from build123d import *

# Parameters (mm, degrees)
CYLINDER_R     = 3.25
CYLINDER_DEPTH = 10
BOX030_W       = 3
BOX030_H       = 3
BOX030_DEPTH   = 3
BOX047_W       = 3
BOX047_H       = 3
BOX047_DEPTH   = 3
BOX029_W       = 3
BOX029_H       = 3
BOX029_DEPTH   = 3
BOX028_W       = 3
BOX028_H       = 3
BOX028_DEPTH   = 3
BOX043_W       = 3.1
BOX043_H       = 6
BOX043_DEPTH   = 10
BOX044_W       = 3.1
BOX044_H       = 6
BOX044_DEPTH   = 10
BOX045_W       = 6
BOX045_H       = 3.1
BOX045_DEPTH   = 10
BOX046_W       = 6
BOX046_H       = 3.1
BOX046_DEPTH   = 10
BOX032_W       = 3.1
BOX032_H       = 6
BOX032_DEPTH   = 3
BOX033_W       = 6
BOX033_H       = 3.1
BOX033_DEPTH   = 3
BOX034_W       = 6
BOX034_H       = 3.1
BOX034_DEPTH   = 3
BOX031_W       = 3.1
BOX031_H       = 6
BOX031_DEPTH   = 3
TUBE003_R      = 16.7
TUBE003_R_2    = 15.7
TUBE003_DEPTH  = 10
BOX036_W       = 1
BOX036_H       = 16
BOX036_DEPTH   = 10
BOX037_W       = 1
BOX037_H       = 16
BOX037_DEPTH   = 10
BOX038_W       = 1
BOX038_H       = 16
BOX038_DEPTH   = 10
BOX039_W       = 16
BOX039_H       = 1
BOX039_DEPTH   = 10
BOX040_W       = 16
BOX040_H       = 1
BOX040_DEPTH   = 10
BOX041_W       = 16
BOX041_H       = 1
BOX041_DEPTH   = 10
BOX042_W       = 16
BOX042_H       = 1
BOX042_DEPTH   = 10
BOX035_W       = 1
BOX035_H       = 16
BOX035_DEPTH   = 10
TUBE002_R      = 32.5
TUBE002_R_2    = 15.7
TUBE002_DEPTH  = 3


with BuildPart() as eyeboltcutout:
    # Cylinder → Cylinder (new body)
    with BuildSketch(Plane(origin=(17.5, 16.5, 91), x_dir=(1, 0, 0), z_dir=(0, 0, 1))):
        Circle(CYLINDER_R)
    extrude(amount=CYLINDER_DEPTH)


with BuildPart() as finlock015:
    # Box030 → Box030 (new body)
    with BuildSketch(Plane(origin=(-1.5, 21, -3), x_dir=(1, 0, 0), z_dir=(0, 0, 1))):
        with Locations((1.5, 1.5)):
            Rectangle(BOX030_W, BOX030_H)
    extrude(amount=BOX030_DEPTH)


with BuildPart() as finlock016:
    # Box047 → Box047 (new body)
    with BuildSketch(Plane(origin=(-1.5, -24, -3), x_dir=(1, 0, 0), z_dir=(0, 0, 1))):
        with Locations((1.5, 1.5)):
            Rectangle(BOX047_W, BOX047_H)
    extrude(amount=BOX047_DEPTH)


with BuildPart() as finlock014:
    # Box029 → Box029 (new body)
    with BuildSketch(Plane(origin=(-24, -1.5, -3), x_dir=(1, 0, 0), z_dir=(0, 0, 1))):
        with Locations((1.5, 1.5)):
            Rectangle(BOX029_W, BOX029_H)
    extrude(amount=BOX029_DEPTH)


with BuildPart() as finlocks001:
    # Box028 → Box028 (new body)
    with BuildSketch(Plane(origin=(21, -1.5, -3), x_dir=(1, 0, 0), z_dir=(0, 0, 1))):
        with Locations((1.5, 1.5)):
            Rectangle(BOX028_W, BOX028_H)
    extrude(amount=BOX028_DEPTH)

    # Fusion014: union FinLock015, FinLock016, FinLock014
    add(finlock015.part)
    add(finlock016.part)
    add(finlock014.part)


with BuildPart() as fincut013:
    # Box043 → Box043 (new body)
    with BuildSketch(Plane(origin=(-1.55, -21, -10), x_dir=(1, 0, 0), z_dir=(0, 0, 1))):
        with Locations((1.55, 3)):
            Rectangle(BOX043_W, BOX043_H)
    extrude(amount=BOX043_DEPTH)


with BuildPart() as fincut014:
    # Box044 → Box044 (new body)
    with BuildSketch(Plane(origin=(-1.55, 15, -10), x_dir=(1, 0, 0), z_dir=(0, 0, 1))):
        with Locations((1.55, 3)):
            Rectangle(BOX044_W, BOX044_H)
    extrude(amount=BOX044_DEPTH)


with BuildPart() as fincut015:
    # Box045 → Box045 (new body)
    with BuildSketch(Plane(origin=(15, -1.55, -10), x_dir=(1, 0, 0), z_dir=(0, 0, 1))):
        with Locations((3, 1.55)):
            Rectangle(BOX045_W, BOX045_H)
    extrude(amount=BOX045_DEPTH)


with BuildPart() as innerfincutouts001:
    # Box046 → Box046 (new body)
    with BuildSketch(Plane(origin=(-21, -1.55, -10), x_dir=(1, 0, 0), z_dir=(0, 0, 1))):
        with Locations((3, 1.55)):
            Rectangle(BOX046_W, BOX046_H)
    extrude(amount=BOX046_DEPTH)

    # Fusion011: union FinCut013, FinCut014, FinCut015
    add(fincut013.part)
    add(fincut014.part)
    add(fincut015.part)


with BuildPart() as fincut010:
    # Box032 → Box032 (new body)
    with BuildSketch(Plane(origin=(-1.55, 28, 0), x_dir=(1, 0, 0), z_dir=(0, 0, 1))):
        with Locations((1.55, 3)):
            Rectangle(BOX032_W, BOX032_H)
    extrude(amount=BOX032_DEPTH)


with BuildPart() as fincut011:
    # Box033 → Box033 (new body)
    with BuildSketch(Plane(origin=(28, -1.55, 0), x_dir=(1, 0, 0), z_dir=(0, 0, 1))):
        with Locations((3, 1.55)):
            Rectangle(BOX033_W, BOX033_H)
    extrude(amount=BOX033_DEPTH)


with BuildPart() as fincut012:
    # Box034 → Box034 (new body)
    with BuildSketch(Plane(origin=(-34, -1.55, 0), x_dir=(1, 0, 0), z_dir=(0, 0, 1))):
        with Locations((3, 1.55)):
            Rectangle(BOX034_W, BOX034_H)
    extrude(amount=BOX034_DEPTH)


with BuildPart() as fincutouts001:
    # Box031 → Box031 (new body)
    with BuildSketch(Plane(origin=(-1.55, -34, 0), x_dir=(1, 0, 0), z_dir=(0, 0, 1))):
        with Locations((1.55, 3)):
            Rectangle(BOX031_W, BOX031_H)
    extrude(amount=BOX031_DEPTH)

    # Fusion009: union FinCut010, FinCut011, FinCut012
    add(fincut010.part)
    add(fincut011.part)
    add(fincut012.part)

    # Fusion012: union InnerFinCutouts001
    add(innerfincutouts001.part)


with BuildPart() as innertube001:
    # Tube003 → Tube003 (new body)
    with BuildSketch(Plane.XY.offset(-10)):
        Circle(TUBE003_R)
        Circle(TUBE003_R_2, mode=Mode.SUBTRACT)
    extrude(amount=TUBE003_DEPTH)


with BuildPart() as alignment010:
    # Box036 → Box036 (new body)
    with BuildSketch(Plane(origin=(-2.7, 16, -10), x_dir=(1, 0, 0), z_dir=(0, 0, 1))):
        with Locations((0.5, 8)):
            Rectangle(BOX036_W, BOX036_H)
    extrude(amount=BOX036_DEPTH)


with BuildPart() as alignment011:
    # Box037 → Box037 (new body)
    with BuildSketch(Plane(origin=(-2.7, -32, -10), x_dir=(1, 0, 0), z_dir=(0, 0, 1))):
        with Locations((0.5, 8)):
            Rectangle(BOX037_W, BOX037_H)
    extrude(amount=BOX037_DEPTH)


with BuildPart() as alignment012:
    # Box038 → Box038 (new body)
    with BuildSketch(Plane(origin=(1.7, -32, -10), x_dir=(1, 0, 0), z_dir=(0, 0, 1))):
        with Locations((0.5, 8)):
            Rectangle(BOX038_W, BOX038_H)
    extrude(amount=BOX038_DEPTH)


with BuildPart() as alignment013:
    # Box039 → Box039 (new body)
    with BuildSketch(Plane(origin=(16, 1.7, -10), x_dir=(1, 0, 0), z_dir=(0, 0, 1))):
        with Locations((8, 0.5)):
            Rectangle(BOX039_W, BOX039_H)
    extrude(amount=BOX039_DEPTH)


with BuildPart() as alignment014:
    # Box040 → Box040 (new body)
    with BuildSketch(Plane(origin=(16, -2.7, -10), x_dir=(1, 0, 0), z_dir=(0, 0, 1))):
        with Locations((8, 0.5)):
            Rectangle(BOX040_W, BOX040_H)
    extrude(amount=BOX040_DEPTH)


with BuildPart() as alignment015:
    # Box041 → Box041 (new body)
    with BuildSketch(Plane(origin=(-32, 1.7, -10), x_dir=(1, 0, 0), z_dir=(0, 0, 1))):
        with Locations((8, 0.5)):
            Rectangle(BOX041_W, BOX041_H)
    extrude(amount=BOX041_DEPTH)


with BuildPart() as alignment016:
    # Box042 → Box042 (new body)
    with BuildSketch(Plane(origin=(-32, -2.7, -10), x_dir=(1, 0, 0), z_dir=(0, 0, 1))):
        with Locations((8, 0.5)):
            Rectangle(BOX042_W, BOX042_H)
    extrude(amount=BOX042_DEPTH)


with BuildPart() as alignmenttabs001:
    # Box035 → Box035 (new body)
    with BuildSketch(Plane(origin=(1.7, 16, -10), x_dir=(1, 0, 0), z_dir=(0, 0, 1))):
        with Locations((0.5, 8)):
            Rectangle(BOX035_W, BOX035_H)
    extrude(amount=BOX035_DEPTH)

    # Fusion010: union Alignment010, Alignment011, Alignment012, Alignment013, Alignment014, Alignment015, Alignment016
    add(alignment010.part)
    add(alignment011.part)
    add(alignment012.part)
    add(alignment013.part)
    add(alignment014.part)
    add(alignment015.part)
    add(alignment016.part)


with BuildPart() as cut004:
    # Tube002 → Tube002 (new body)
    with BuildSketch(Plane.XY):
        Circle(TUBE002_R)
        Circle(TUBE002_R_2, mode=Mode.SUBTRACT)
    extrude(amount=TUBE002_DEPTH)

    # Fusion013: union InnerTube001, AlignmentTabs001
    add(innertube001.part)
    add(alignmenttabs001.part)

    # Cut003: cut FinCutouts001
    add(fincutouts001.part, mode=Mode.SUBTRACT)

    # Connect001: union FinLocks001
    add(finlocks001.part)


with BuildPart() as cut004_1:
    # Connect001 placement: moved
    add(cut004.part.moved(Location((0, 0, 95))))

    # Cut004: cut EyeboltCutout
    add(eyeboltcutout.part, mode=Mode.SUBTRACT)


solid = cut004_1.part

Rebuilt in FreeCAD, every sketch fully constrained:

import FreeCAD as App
import Part
import Sketcher
from FreeCAD import Vector

doc = App.newDocument("Part")
body = doc.addObject("PartDesign::Body", "Body")

# Sketch on XY plane
sketch1 = doc.addObject("Sketcher::SketchObject", "Sketch")
body.addObject(sketch1)
sketch1.AttachmentSupport = (doc.XY_Plane, [""])
sketch1.MapMode = "FlatFace"
sketch1.AttachmentOffset = App.Placement(Vector(0, 0, 91), App.Rotation())
sketch1.addGeometry(Part.Circle(Vector(17.5, 16.5, 0), Vector(0, 0, 1), 3.2), False)
sketch1.addConstraint(Sketcher.Constraint("Diameter", 0, 6.5))
sketch1.addConstraint(Sketcher.Constraint("DistanceX", -1, 1, 0, 3, 17.5))
sketch1.addConstraint(Sketcher.Constraint("DistanceY", -1, 1, 0, 3, 16.5))
pad1 = doc.addObject("PartDesign::Pad", "Pad")
body.addObject(pad1)
pad1.Profile = sketch1
pad1.Length = 10
body2 = doc.addObject("PartDesign::Body", "Body001")

# Sketch on XY plane
sketch2 = doc.addObject("Sketcher::SketchObject", "Sketch001")
body2.addObject(sketch2)
sketch2.AttachmentSupport = (doc.getObject("XY_Plane001"), [""])
sketch2.MapMode = "FlatFace"
sketch2.AttachmentOffset = App.Placement(Vector(0, 0, -3), App.Rotation())
sketch2.addGeometry(Part.LineSegment(Vector(-1.5, 24, 0), Vector(-1.5, 21, 0)), False)
sketch2.addGeometry(Part.LineSegment(Vector(-1.5, 21, 0), Vector(1.5, 21, 0)), False)
sketch2.addGeometry(Part.LineSegment(Vector(1.5, 21, 0), Vector(1.5, 24, 0)), False)
sketch2.addGeometry(Part.LineSegment(Vector(1.5, 24, 0), Vector(-1.5, 24, 0)), False)
sketch2.addConstraint(Sketcher.Constraint("Coincident", 0, 2, 1, 1))
sketch2.addConstraint(Sketcher.Constraint("Coincident", 1, 2, 2, 1))
sketch2.addConstraint(Sketcher.Constraint("Coincident", 2, 2, 3, 1))
sketch2.addConstraint(Sketcher.Constraint("Coincident", 3, 2, 0, 1))
sketch2.addConstraint(Sketcher.Constraint("Vertical", 0))
sketch2.addConstraint(Sketcher.Constraint("Horizontal", 1))
sketch2.addConstraint(Sketcher.Constraint("Vertical", 2))
sketch2.addConstraint(Sketcher.Constraint("Horizontal", 3))
sketch2.addConstraint(Sketcher.Constraint("Equal", 3, 0))
sketch2.addConstraint(Sketcher.Constraint("DistanceX", 1, 1, 1, 2, 3.0))
sketch2.addConstraint(Sketcher.Constraint("DistanceY", -1, 1, 0, 2, 21.0))
sketch2.addConstraint(Sketcher.Constraint("DistanceX", 0, 2, -1, 1, 1.5))
pad2 = doc.addObject("PartDesign::Pad", "Pad001")
body2.addObject(pad2)
pad2.Profile = sketch2
pad2.Length = 3
body3 = doc.addObject("PartDesign::Body", "Body002")

# Sketch on XY plane
sketch3 = doc.addObject("Sketcher::SketchObject", "Sketch002")
body3.addObject(sketch3)
sketch3.AttachmentSupport = (doc.getObject("XY_Plane002"), [""])
sketch3.MapMode = "FlatFace"
sketch3.AttachmentOffset = App.Placement(Vector(0, 0, -3), App.Rotation())
sketch3.addGeometry(Part.LineSegment(Vector(-1.5, -21, 0), Vector(-1.5, -24, 0)), False)
sketch3.addGeometry(Part.LineSegment(Vector(-1.5, -24, 0), Vector(1.5, -24, 0)), False)
sketch3.addGeometry(Part.LineSegment(Vector(1.5, -24, 0), Vector(1.5, -21, 0)), False)
sketch3.addGeometry(Part.LineSegment(Vector(1.5, -21, 0), Vector(-1.5, -21, 0)), False)
sketch3.addConstraint(Sketcher.Constraint("Coincident", 0, 2, 1, 1))
sketch3.addConstraint(Sketcher.Constraint("Coincident", 1, 2, 2, 1))
sketch3.addConstraint(Sketcher.Constraint("Coincident", 2, 2, 3, 1))
sketch3.addConstraint(Sketcher.Constraint("Coincident", 3, 2, 0, 1))
sketch3.addConstraint(Sketcher.Constraint("Vertical", 0))
sketch3.addConstraint(Sketcher.Constraint("Horizontal", 1))
sketch3.addConstraint(Sketcher.Constraint("Vertical", 2))
sketch3.addConstraint(Sketcher.Constraint("Horizontal", 3))
sketch3.addConstraint(Sketcher.Constraint("Equal", 3, 0))
sketch3.addConstraint(Sketcher.Constraint("DistanceX", 1, 1, 1, 2, 3.0))
sketch3.addConstraint(Sketcher.Constraint("DistanceY", 0, 2, -1, 1, 24.0))
sketch3.addConstraint(Sketcher.Constraint("DistanceX", 0, 2, -1, 1, 1.5))
pad3 = doc.addObject("PartDesign::Pad", "Pad002")
body3.addObject(pad3)
pad3.Profile = sketch3
pad3.Length = 3
body4 = doc.addObject("PartDesign::Body", "Body003")

# Sketch on XY plane
sketch4 = doc.addObject("Sketcher::SketchObject", "Sketch003")
body4.addObject(sketch4)
sketch4.AttachmentSupport = (doc.getObject("XY_Plane003"), [""])
sketch4.MapMode = "FlatFace"
sketch4.AttachmentOffset = App.Placement(Vector(0, 0, -3), App.Rotation())
sketch4.addGeometry(Part.LineSegment(Vector(-24, 1.5, 0), Vector(-24, -1.5, 0)), False)
sketch4.addGeometry(Part.LineSegment(Vector(-24, -1.5, 0), Vector(-21, -1.5, 0)), False)
sketch4.addGeometry(Part.LineSegment(Vector(-21, -1.5, 0), Vector(-21, 1.5, 0)), False)
sketch4.addGeometry(Part.LineSegment(Vector(-21, 1.5, 0), Vector(-24, 1.5, 0)), False)
sketch4.addConstraint(Sketcher.Constraint("Coincident", 0, 2, 1, 1))
sketch4.addConstraint(Sketcher.Constraint("Coincident", 1, 2, 2, 1))
sketch4.addConstraint(Sketcher.Constraint("Coincident", 2, 2, 3, 1))
sketch4.addConstraint(Sketcher.Constraint("Coincident", 3, 2, 0, 1))
sketch4.addConstraint(Sketcher.Constraint("Vertical", 0))
sketch4.addConstraint(Sketcher.Constraint("Horizontal", 1))
sketch4.addConstraint(Sketcher.Constraint("Vertical", 2))
sketch4.addConstraint(Sketcher.Constraint("Horizontal", 3))
sketch4.addConstraint(Sketcher.Constraint("Equal", 3, 0))
sketch4.addConstraint(Sketcher.Constraint("DistanceX", 1, 1, 1, 2, 3.0))
sketch4.addConstraint(Sketcher.Constraint("DistanceX", 0, 2, -1, 1, 24.0))
sketch4.addConstraint(Sketcher.Constraint("DistanceY", 0, 2, -1, 1, 1.5))
pad4 = doc.addObject("PartDesign::Pad", "Pad003")
body4.addObject(pad4)
pad4.Profile = sketch4
pad4.Length = 3
body5 = doc.addObject("PartDesign::Body", "Body004")
body5.AllowCompound = True

# Sketch on XY plane
sketch5 = doc.addObject("Sketcher::SketchObject", "Sketch004")
body5.addObject(sketch5)
sketch5.AttachmentSupport = (doc.getObject("XY_Plane004"), [""])
sketch5.MapMode = "FlatFace"
sketch5.AttachmentOffset = App.Placement(Vector(0, 0, -3), App.Rotation())
sketch5.addGeometry(Part.LineSegment(Vector(21, 1.5, 0), Vector(21, -1.5, 0)), False)
sketch5.addGeometry(Part.LineSegment(Vector(21, -1.5, 0), Vector(24, -1.5, 0)), False)
sketch5.addGeometry(Part.LineSegment(Vector(24, -1.5, 0), Vector(24, 1.5, 0)), False)
sketch5.addGeometry(Part.LineSegment(Vector(24, 1.5, 0), Vector(21, 1.5, 0)), False)
sketch5.addConstraint(Sketcher.Constraint("Coincident", 0, 2, 1, 1))
sketch5.addConstraint(Sketcher.Constraint("Coincident", 1, 2, 2, 1))
sketch5.addConstraint(Sketcher.Constraint("Coincident", 2, 2, 3, 1))
sketch5.addConstraint(Sketcher.Constraint("Coincident", 3, 2, 0, 1))
sketch5.addConstraint(Sketcher.Constraint("Vertical", 0))
sketch5.addConstraint(Sketcher.Constraint("Horizontal", 1))
sketch5.addConstraint(Sketcher.Constraint("Vertical", 2))
sketch5.addConstraint(Sketcher.Constraint("Horizontal", 3))
sketch5.addConstraint(Sketcher.Constraint("Equal", 3, 0))
sketch5.addConstraint(Sketcher.Constraint("DistanceX", 1, 1, 1, 2, 3.0))
sketch5.addConstraint(Sketcher.Constraint("DistanceX", -1, 1, 0, 2, 21.0))
sketch5.addConstraint(Sketcher.Constraint("DistanceY", 0, 2, -1, 1, 1.5))
pad5 = doc.addObject("PartDesign::Pad", "Pad004")
body5.addObject(pad5)
pad5.Profile = sketch5
pad5.Length = 3
doc.recompute()

boolean = doc.addObject("PartDesign::Boolean", "Boolean")
body5.addObject(boolean)
boolean.Type = "Fuse"
boolean.addObjects([body2])
doc.recompute()

boolean2 = doc.addObject("PartDesign::Boolean", "Boolean001")
body5.addObject(boolean2)
boolean2.Type = "Fuse"
boolean2.addObjects([body3])
doc.recompute()

boolean3 = doc.addObject("PartDesign::Boolean", "Boolean002")
body5.addObject(boolean3)
boolean3.Type = "Fuse"
boolean3.addObjects([body4])
body6 = doc.addObject("PartDesign::Body", "Body005")

# Sketch on XY plane
sketch6 = doc.addObject("Sketcher::SketchObject", "Sketch005")
body6.addObject(sketch6)
sketch6.AttachmentSupport = (doc.getObject("XY_Plane005"), [""])
sketch6.MapMode = "FlatFace"
sketch6.AttachmentOffset = App.Placement(Vector(0, 0, -10), App.Rotation())
sketch6.addGeometry(Part.LineSegment(Vector(-1.6, -15, 0), Vector(-1.6, -21, 0)), False)
sketch6.addGeometry(Part.LineSegment(Vector(-1.6, -21, 0), Vector(1.6, -21, 0)), False)
sketch6.addGeometry(Part.LineSegment(Vector(1.6, -21, 0), Vector(1.6, -15, 0)), False)
sketch6.addGeometry(Part.LineSegment(Vector(1.6, -15, 0), Vector(-1.6, -15, 0)), False)
sketch6.addConstraint(Sketcher.Constraint("Coincident", 0, 2, 1, 1))
sketch6.addConstraint(Sketcher.Constraint("Coincident", 1, 2, 2, 1))
sketch6.addConstraint(Sketcher.Constraint("Coincident", 2, 2, 3, 1))
sketch6.addConstraint(Sketcher.Constraint("Coincident", 3, 2, 0, 1))
sketch6.addConstraint(Sketcher.Constraint("Vertical", 0))
sketch6.addConstraint(Sketcher.Constraint("Horizontal", 1))
sketch6.addConstraint(Sketcher.Constraint("Vertical", 2))
sketch6.addConstraint(Sketcher.Constraint("Horizontal", 3))
sketch6.addConstraint(Sketcher.Constraint("DistanceY", 0, 2, 0, 1, 6.0))
sketch6.addConstraint(Sketcher.Constraint("DistanceX", 1, 1, 1, 2, 3.1))
sketch6.addConstraint(Sketcher.Constraint("DistanceY", 0, 2, -1, 1, 21.0))
sketch6.addConstraint(Sketcher.Constraint("DistanceX", 0, 2, -1, 1, 1.55))
pad6 = doc.addObject("PartDesign::Pad", "Pad005")
body6.addObject(pad6)
pad6.Profile = sketch6
pad6.Length = 10
body7 = doc.addObject("PartDesign::Body", "Body006")

# Sketch on XY plane
sketch7 = doc.addObject("Sketcher::SketchObject", "Sketch006")
body7.addObject(sketch7)
sketch7.AttachmentSupport = (doc.getObject("XY_Plane006"), [""])
sketch7.MapMode = "FlatFace"
sketch7.AttachmentOffset = App.Placement(Vector(0, 0, -10), App.Rotation())
sketch7.addGeometry(Part.LineSegment(Vector(-1.6, 21, 0), Vector(-1.6, 15, 0)), False)
sketch7.addGeometry(Part.LineSegment(Vector(-1.6, 15, 0), Vector(1.6, 15, 0)), False)
sketch7.addGeometry(Part.LineSegment(Vector(1.6, 15, 0), Vector(1.6, 21, 0)), False)
sketch7.addGeometry(Part.LineSegment(Vector(1.6, 21, 0), Vector(-1.6, 21, 0)), False)
sketch7.addConstraint(Sketcher.Constraint("Coincident", 0, 2, 1, 1))
sketch7.addConstraint(Sketcher.Constraint("Coincident", 1, 2, 2, 1))
sketch7.addConstraint(Sketcher.Constraint("Coincident", 2, 2, 3, 1))
sketch7.addConstraint(Sketcher.Constraint("Coincident", 3, 2, 0, 1))
sketch7.addConstraint(Sketcher.Constraint("Vertical", 0))
sketch7.addConstraint(Sketcher.Constraint("Horizontal", 1))
sketch7.addConstraint(Sketcher.Constraint("Vertical", 2))
sketch7.addConstraint(Sketcher.Constraint("Horizontal", 3))
sketch7.addConstraint(Sketcher.Constraint("DistanceY", 0, 2, 0, 1, 6.0))
sketch7.addConstraint(Sketcher.Constraint("DistanceX", 1, 1, 1, 2, 3.1))
sketch7.addConstraint(Sketcher.Constraint("DistanceY", -1, 1, 0, 2, 15.0))
sketch7.addConstraint(Sketcher.Constraint("DistanceX", 0, 2, -1, 1, 1.55))
pad7 = doc.addObject("PartDesign::Pad", "Pad006")
body7.addObject(pad7)
pad7.Profile = sketch7
pad7.Length = 10
body8 = doc.addObject("PartDesign::Body", "Body007")

# Sketch on XY plane
sketch8 = doc.addObject("Sketcher::SketchObject", "Sketch007")
body8.addObject(sketch8)
sketch8.AttachmentSupport = (doc.getObject("XY_Plane007"), [""])
sketch8.MapMode = "FlatFace"
sketch8.AttachmentOffset = App.Placement(Vector(0, 0, -10), App.Rotation())
sketch8.addGeometry(Part.LineSegment(Vector(15, 1.6, 0), Vector(15, -1.6, 0)), False)
sketch8.addGeometry(Part.LineSegment(Vector(15, -1.6, 0), Vector(21, -1.6, 0)), False)
sketch8.addGeometry(Part.LineSegment(Vector(21, -1.6, 0), Vector(21, 1.6, 0)), False)
sketch8.addGeometry(Part.LineSegment(Vector(21, 1.6, 0), Vector(15, 1.6, 0)), False)
sketch8.addConstraint(Sketcher.Constraint("Coincident", 0, 2, 1, 1))
sketch8.addConstraint(Sketcher.Constraint("Coincident", 1, 2, 2, 1))
sketch8.addConstraint(Sketcher.Constraint("Coincident", 2, 2, 3, 1))
sketch8.addConstraint(Sketcher.Constraint("Coincident", 3, 2, 0, 1))
sketch8.addConstraint(Sketcher.Constraint("Vertical", 0))
sketch8.addConstraint(Sketcher.Constraint("Horizontal", 1))
sketch8.addConstraint(Sketcher.Constraint("Vertical", 2))
sketch8.addConstraint(Sketcher.Constraint("Horizontal", 3))
sketch8.addConstraint(Sketcher.Constraint("DistanceX", 1, 1, 1, 2, 6.0))
sketch8.addConstraint(Sketcher.Constraint("DistanceY", 0, 2, 0, 1, 3.1))
sketch8.addConstraint(Sketcher.Constraint("DistanceX", -1, 1, 0, 2, 15.0))
sketch8.addConstraint(Sketcher.Constraint("DistanceY", 0, 2, -1, 1, 1.55))
pad8 = doc.addObject("PartDesign::Pad", "Pad007")
body8.addObject(pad8)
pad8.Profile = sketch8
pad8.Length = 10
body9 = doc.addObject("PartDesign::Body", "Body008")
body9.AllowCompound = True

# Sketch on XY plane
sketch9 = doc.addObject("Sketcher::SketchObject", "Sketch008")
body9.addObject(sketch9)
sketch9.AttachmentSupport = (doc.getObject("XY_Plane008"), [""])
sketch9.MapMode = "FlatFace"
sketch9.AttachmentOffset = App.Placement(Vector(0, 0, -10), App.Rotation())
sketch9.addGeometry(Part.LineSegment(Vector(-21, 1.6, 0), Vector(-21, -1.6, 0)), False)
sketch9.addGeometry(Part.LineSegment(Vector(-21, -1.6, 0), Vector(-15, -1.6, 0)), False)
sketch9.addGeometry(Part.LineSegment(Vector(-15, -1.6, 0), Vector(-15, 1.6, 0)), False)
sketch9.addGeometry(Part.LineSegment(Vector(-15, 1.6, 0), Vector(-21, 1.6, 0)), False)
sketch9.addConstraint(Sketcher.Constraint("Coincident", 0, 2, 1, 1))
sketch9.addConstraint(Sketcher.Constraint("Coincident", 1, 2, 2, 1))
sketch9.addConstraint(Sketcher.Constraint("Coincident", 2, 2, 3, 1))
sketch9.addConstraint(Sketcher.Constraint("Coincident", 3, 2, 0, 1))
sketch9.addConstraint(Sketcher.Constraint("Vertical", 0))
sketch9.addConstraint(Sketcher.Constraint("Horizontal", 1))
sketch9.addConstraint(Sketcher.Constraint("Vertical", 2))
sketch9.addConstraint(Sketcher.Constraint("Horizontal", 3))
sketch9.addConstraint(Sketcher.Constraint("DistanceX", 1, 1, 1, 2, 6.0))
sketch9.addConstraint(Sketcher.Constraint("DistanceY", 0, 2, 0, 1, 3.1))
sketch9.addConstraint(Sketcher.Constraint("DistanceX", 0, 2, -1, 1, 21.0))
sketch9.addConstraint(Sketcher.Constraint("DistanceY", 0, 2, -1, 1, 1.55))
pad9 = doc.addObject("PartDesign::Pad", "Pad008")
body9.addObject(pad9)
pad9.Profile = sketch9
pad9.Length = 10
doc.recompute()

boolean4 = doc.addObject("PartDesign::Boolean", "Boolean003")
body9.addObject(boolean4)
boolean4.Type = "Fuse"
boolean4.addObjects([body6])
doc.recompute()

boolean5 = doc.addObject("PartDesign::Boolean", "Boolean004")
body9.addObject(boolean5)
boolean5.Type = "Fuse"
boolean5.addObjects([body7])
doc.recompute()

boolean6 = doc.addObject("PartDesign::Boolean", "Boolean005")
body9.addObject(boolean6)
boolean6.Type = "Fuse"
boolean6.addObjects([body8])
body10 = doc.addObject("PartDesign::Body", "Body009")

# Sketch on XY plane
sketch10 = doc.addObject("Sketcher::SketchObject", "Sketch009")
body10.addObject(sketch10)
sketch10.AttachmentSupport = (doc.getObject("XY_Plane009"), [""])
sketch10.MapMode = "FlatFace"
sketch10.addGeometry(Part.LineSegment(Vector(-1.6, 34, 0), Vector(-1.6, 28, 0)), False)
sketch10.addGeometry(Part.LineSegment(Vector(-1.6, 28, 0), Vector(1.6, 28, 0)), False)
sketch10.addGeometry(Part.LineSegment(Vector(1.6, 28, 0), Vector(1.6, 34, 0)), False)
sketch10.addGeometry(Part.LineSegment(Vector(1.6, 34, 0), Vector(-1.6, 34, 0)), False)
sketch10.addConstraint(Sketcher.Constraint("Coincident", 0, 2, 1, 1))
sketch10.addConstraint(Sketcher.Constraint("Coincident", 1, 2, 2, 1))
sketch10.addConstraint(Sketcher.Constraint("Coincident", 2, 2, 3, 1))
sketch10.addConstraint(Sketcher.Constraint("Coincident", 3, 2, 0, 1))
sketch10.addConstraint(Sketcher.Constraint("Vertical", 0))
sketch10.addConstraint(Sketcher.Constraint("Horizontal", 1))
sketch10.addConstraint(Sketcher.Constraint("Vertical", 2))
sketch10.addConstraint(Sketcher.Constraint("Horizontal", 3))
sketch10.addConstraint(Sketcher.Constraint("DistanceY", 0, 2, 0, 1, 6.0))
sketch10.addConstraint(Sketcher.Constraint("DistanceX", 1, 1, 1, 2, 3.1))
sketch10.addConstraint(Sketcher.Constraint("DistanceY", -1, 1, 0, 2, 28.0))
sketch10.addConstraint(Sketcher.Constraint("DistanceX", 0, 2, -1, 1, 1.55))
pad10 = doc.addObject("PartDesign::Pad", "Pad009")
body10.addObject(pad10)
pad10.Profile = sketch10
pad10.Length = 3
body11 = doc.addObject("PartDesign::Body", "Body010")

# Sketch on XY plane
sketch11 = doc.addObject("Sketcher::SketchObject", "Sketch010")
body11.addObject(sketch11)
sketch11.AttachmentSupport = (doc.getObject("XY_Plane010"), [""])
sketch11.MapMode = "FlatFace"
sketch11.addGeometry(Part.LineSegment(Vector(28, 1.6, 0), Vector(28, -1.6, 0)), False)
sketch11.addGeometry(Part.LineSegment(Vector(28, -1.6, 0), Vector(34, -1.6, 0)), False)
sketch11.addGeometry(Part.LineSegment(Vector(34, -1.6, 0), Vector(34, 1.6, 0)), False)
sketch11.addGeometry(Part.LineSegment(Vector(34, 1.6, 0), Vector(28, 1.6, 0)), False)
sketch11.addConstraint(Sketcher.Constraint("Coincident", 0, 2, 1, 1))
sketch11.addConstraint(Sketcher.Constraint("Coincident", 1, 2, 2, 1))
sketch11.addConstraint(Sketcher.Constraint("Coincident", 2, 2, 3, 1))
sketch11.addConstraint(Sketcher.Constraint("Coincident", 3, 2, 0, 1))
sketch11.addConstraint(Sketcher.Constraint("Vertical", 0))
sketch11.addConstraint(Sketcher.Constraint("Horizontal", 1))
sketch11.addConstraint(Sketcher.Constraint("Vertical", 2))
sketch11.addConstraint(Sketcher.Constraint("Horizontal", 3))
sketch11.addConstraint(Sketcher.Constraint("DistanceX", 1, 1, 1, 2, 6.0))
sketch11.addConstraint(Sketcher.Constraint("DistanceY", 0, 2, 0, 1, 3.1))
sketch11.addConstraint(Sketcher.Constraint("DistanceX", -1, 1, 0, 2, 28.0))
sketch11.addConstraint(Sketcher.Constraint("DistanceY", 0, 2, -1, 1, 1.55))
pad11 = doc.addObject("PartDesign::Pad", "Pad010")
body11.addObject(pad11)
pad11.Profile = sketch11
pad11.Length = 3
body12 = doc.addObject("PartDesign::Body", "Body011")

# Sketch on XY plane
sketch12 = doc.addObject("Sketcher::SketchObject", "Sketch011")
body12.addObject(sketch12)
sketch12.AttachmentSupport = (doc.getObject("XY_Plane011"), [""])
sketch12.MapMode = "FlatFace"
sketch12.addGeometry(Part.LineSegment(Vector(-34, 1.6, 0), Vector(-34, -1.6, 0)), False)
sketch12.addGeometry(Part.LineSegment(Vector(-34, -1.6, 0), Vector(-28, -1.6, 0)), False)
sketch12.addGeometry(Part.LineSegment(Vector(-28, -1.6, 0), Vector(-28, 1.6, 0)), False)
sketch12.addGeometry(Part.LineSegment(Vector(-28, 1.6, 0), Vector(-34, 1.6, 0)), False)
sketch12.addConstraint(Sketcher.Constraint("Coincident", 0, 2, 1, 1))
sketch12.addConstraint(Sketcher.Constraint("Coincident", 1, 2, 2, 1))
sketch12.addConstraint(Sketcher.Constraint("Coincident", 2, 2, 3, 1))
sketch12.addConstraint(Sketcher.Constraint("Coincident", 3, 2, 0, 1))
sketch12.addConstraint(Sketcher.Constraint("Vertical", 0))
sketch12.addConstraint(Sketcher.Constraint("Horizontal", 1))
sketch12.addConstraint(Sketcher.Constraint("Vertical", 2))
sketch12.addConstraint(Sketcher.Constraint("Horizontal", 3))
sketch12.addConstraint(Sketcher.Constraint("DistanceX", 1, 1, 1, 2, 6.0))
sketch12.addConstraint(Sketcher.Constraint("DistanceY", 0, 2, 0, 1, 3.1))
sketch12.addConstraint(Sketcher.Constraint("DistanceX", 0, 2, -1, 1, 34.0))
sketch12.addConstraint(Sketcher.Constraint("DistanceY", 0, 2, -1, 1, 1.55))
pad12 = doc.addObject("PartDesign::Pad", "Pad011")
body12.addObject(pad12)
pad12.Profile = sketch12
pad12.Length = 3
body13 = doc.addObject("PartDesign::Body", "Body012")
body13.AllowCompound = True

# Sketch on XY plane
sketch13 = doc.addObject("Sketcher::SketchObject", "Sketch012")
body13.addObject(sketch13)
sketch13.AttachmentSupport = (doc.getObject("XY_Plane012"), [""])
sketch13.MapMode = "FlatFace"
sketch13.addGeometry(Part.LineSegment(Vector(-1.6, -28, 0), Vector(-1.6, -34, 0)), False)
sketch13.addGeometry(Part.LineSegment(Vector(-1.6, -34, 0), Vector(1.6, -34, 0)), False)
sketch13.addGeometry(Part.LineSegment(Vector(1.6, -34, 0), Vector(1.6, -28, 0)), False)
sketch13.addGeometry(Part.LineSegment(Vector(1.6, -28, 0), Vector(-1.6, -28, 0)), False)
sketch13.addConstraint(Sketcher.Constraint("Coincident", 0, 2, 1, 1))
sketch13.addConstraint(Sketcher.Constraint("Coincident", 1, 2, 2, 1))
sketch13.addConstraint(Sketcher.Constraint("Coincident", 2, 2, 3, 1))
sketch13.addConstraint(Sketcher.Constraint("Coincident", 3, 2, 0, 1))
sketch13.addConstraint(Sketcher.Constraint("Vertical", 0))
sketch13.addConstraint(Sketcher.Constraint("Horizontal", 1))
sketch13.addConstraint(Sketcher.Constraint("Vertical", 2))
sketch13.addConstraint(Sketcher.Constraint("Horizontal", 3))
sketch13.addConstraint(Sketcher.Constraint("DistanceY", 0, 2, 0, 1, 6.0))
sketch13.addConstraint(Sketcher.Constraint("DistanceX", 1, 1, 1, 2, 3.1))
sketch13.addConstraint(Sketcher.Constraint("DistanceY", 0, 2, -1, 1, 34.0))
sketch13.addConstraint(Sketcher.Constraint("DistanceX", 0, 2, -1, 1, 1.55))
pad13 = doc.addObject("PartDesign::Pad", "Pad012")
body13.addObject(pad13)
pad13.Profile = sketch13
pad13.Length = 3
doc.recompute()

boolean7 = doc.addObject("PartDesign::Boolean", "Boolean006")
body13.addObject(boolean7)
boolean7.Type = "Fuse"
boolean7.addObjects([body10])
doc.recompute()

boolean8 = doc.addObject("PartDesign::Boolean", "Boolean007")
body13.addObject(boolean8)
boolean8.Type = "Fuse"
boolean8.addObjects([body11])
doc.recompute()

boolean9 = doc.addObject("PartDesign::Boolean", "Boolean008")
body13.addObject(boolean9)
boolean9.Type = "Fuse"
boolean9.addObjects([body12])
doc.recompute()

boolean10 = doc.addObject("PartDesign::Boolean", "Boolean009")
body13.addObject(boolean10)
boolean10.Type = "Fuse"
boolean10.addObjects([body9])
body14 = doc.addObject("PartDesign::Body", "Body013")

# Sketch on XY plane
sketch14 = doc.addObject("Sketcher::SketchObject", "Sketch013")
body14.addObject(sketch14)
sketch14.AttachmentSupport = (doc.getObject("XY_Plane013"), [""])
sketch14.MapMode = "FlatFace"
sketch14.AttachmentOffset = App.Placement(Vector(0, 0, -10), App.Rotation())
sketch14.addGeometry(Part.Circle(Vector(0, 0, 0), Vector(0, 0, 1), 17), False)
sketch14.addGeometry(Part.Circle(Vector(0, 0, 0), Vector(0, 0, 1), 16), False)
sketch14.addConstraint(Sketcher.Constraint("Coincident", 0, 3, -1, 1))
sketch14.addConstraint(Sketcher.Constraint("Coincident", 1, 3, -1, 1))
sketch14.addConstraint(Sketcher.Constraint("Diameter", 0, 33.4))
sketch14.addConstraint(Sketcher.Constraint("Diameter", 1, 31.4))
pad14 = doc.addObject("PartDesign::Pad", "Pad013")
body14.addObject(pad14)
pad14.Profile = sketch14
pad14.Length = 10
body15 = doc.addObject("PartDesign::Body", "Body014")

# Sketch on XY plane
sketch15 = doc.addObject("Sketcher::SketchObject", "Sketch014")
body15.addObject(sketch15)
sketch15.AttachmentSupport = (doc.getObject("XY_Plane014"), [""])
sketch15.MapMode = "FlatFace"
sketch15.AttachmentOffset = App.Placement(Vector(0, 0, -10), App.Rotation())
sketch15.addGeometry(Part.LineSegment(Vector(-2.7, 32, 0), Vector(-2.7, 16, 0)), False)
sketch15.addGeometry(Part.LineSegment(Vector(-2.7, 16, 0), Vector(-1.7, 16, 0)), False)
sketch15.addGeometry(Part.LineSegment(Vector(-1.7, 16, 0), Vector(-1.7, 32, 0)), False)
sketch15.addGeometry(Part.LineSegment(Vector(-1.7, 32, 0), Vector(-2.7, 32, 0)), False)
sketch15.addConstraint(Sketcher.Constraint("Coincident", 0, 2, 1, 1))
sketch15.addConstraint(Sketcher.Constraint("Coincident", 1, 2, 2, 1))
sketch15.addConstraint(Sketcher.Constraint("Coincident", 2, 2, 3, 1))
sketch15.addConstraint(Sketcher.Constraint("Coincident", 3, 2, 0, 1))
sketch15.addConstraint(Sketcher.Constraint("Vertical", 0))
sketch15.addConstraint(Sketcher.Constraint("Horizontal", 1))
sketch15.addConstraint(Sketcher.Constraint("Vertical", 2))
sketch15.addConstraint(Sketcher.Constraint("Horizontal", 3))
sketch15.addConstraint(Sketcher.Constraint("DistanceX", 1, 1, 1, 2, 1.0))
sketch15.addConstraint(Sketcher.Constraint("DistanceY", 0, 2, 0, 1, 16.0))
sketch15.addConstraint(Sketcher.Constraint("DistanceY", -1, 1, 0, 2, 16.0))
sketch15.addConstraint(Sketcher.Constraint("DistanceX", 0, 2, -1, 1, 2.7))
pad15 = doc.addObject("PartDesign::Pad", "Pad014")
body15.addObject(pad15)
pad15.Profile = sketch15
pad15.Length = 10
body16 = doc.addObject("PartDesign::Body", "Body015")

# Sketch on XY plane
sketch16 = doc.addObject("Sketcher::SketchObject", "Sketch015")
body16.addObject(sketch16)
sketch16.AttachmentSupport = (doc.getObject("XY_Plane015"), [""])
sketch16.MapMode = "FlatFace"
sketch16.AttachmentOffset = App.Placement(Vector(0, 0, -10), App.Rotation())
sketch16.addGeometry(Part.LineSegment(Vector(-2.7, -16, 0), Vector(-2.7, -32, 0)), False)
sketch16.addGeometry(Part.LineSegment(Vector(-2.7, -32, 0), Vector(-1.7, -32, 0)), False)
sketch16.addGeometry(Part.LineSegment(Vector(-1.7, -32, 0), Vector(-1.7, -16, 0)), False)
sketch16.addGeometry(Part.LineSegment(Vector(-1.7, -16, 0), Vector(-2.7, -16, 0)), False)
sketch16.addConstraint(Sketcher.Constraint("Coincident", 0, 2, 1, 1))
sketch16.addConstraint(Sketcher.Constraint("Coincident", 1, 2, 2, 1))
sketch16.addConstraint(Sketcher.Constraint("Coincident", 2, 2, 3, 1))
sketch16.addConstraint(Sketcher.Constraint("Coincident", 3, 2, 0, 1))
sketch16.addConstraint(Sketcher.Constraint("Vertical", 0))
sketch16.addConstraint(Sketcher.Constraint("Horizontal", 1))
sketch16.addConstraint(Sketcher.Constraint("Vertical", 2))
sketch16.addConstraint(Sketcher.Constraint("Horizontal", 3))
sketch16.addConstraint(Sketcher.Constraint("DistanceX", 1, 1, 1, 2, 1.0))
sketch16.addConstraint(Sketcher.Constraint("DistanceY", 0, 2, 0, 1, 16.0))
sketch16.addConstraint(Sketcher.Constraint("DistanceY", 0, 2, -1, 1, 32.0))
sketch16.addConstraint(Sketcher.Constraint("DistanceX", 0, 2, -1, 1, 2.7))
pad16 = doc.addObject("PartDesign::Pad", "Pad015")
body16.addObject(pad16)
pad16.Profile = sketch16
pad16.Length = 10
body17 = doc.addObject("PartDesign::Body", "Body016")

# Sketch on XY plane
sketch17 = doc.addObject("Sketcher::SketchObject", "Sketch016")
body17.addObject(sketch17)
sketch17.AttachmentSupport = (doc.getObject("XY_Plane016"), [""])
sketch17.MapMode = "FlatFace"
sketch17.AttachmentOffset = App.Placement(Vector(0, 0, -10), App.Rotation())
sketch17.addGeometry(Part.LineSegment(Vector(1.7, -16, 0), Vector(1.7, -32, 0)), False)
sketch17.addGeometry(Part.LineSegment(Vector(1.7, -32, 0), Vector(2.7, -32, 0)), False)
sketch17.addGeometry(Part.LineSegment(Vector(2.7, -32, 0), Vector(2.7, -16, 0)), False)
sketch17.addGeometry(Part.LineSegment(Vector(2.7, -16, 0), Vector(1.7, -16, 0)), False)
sketch17.addConstraint(Sketcher.Constraint("Coincident", 0, 2, 1, 1))
sketch17.addConstraint(Sketcher.Constraint("Coincident", 1, 2, 2, 1))
sketch17.addConstraint(Sketcher.Constraint("Coincident", 2, 2, 3, 1))
sketch17.addConstraint(Sketcher.Constraint("Coincident", 3, 2, 0, 1))
sketch17.addConstraint(Sketcher.Constraint("Vertical", 0))
sketch17.addConstraint(Sketcher.Constraint("Horizontal", 1))
sketch17.addConstraint(Sketcher.Constraint("Vertical", 2))
sketch17.addConstraint(Sketcher.Constraint("Horizontal", 3))
sketch17.addConstraint(Sketcher.Constraint("DistanceX", 1, 1, 1, 2, 1.0))
sketch17.addConstraint(Sketcher.Constraint("DistanceY", 0, 2, 0, 1, 16.0))
sketch17.addConstraint(Sketcher.Constraint("DistanceY", 0, 2, -1, 1, 32.0))
sketch17.addConstraint(Sketcher.Constraint("DistanceX", -1, 1, 0, 2, 1.7))
pad17 = doc.addObject("PartDesign::Pad", "Pad016")
body17.addObject(pad17)
pad17.Profile = sketch17
pad17.Length = 10
body18 = doc.addObject("PartDesign::Body", "Body017")

# Sketch on XY plane
sketch18 = doc.addObject("Sketcher::SketchObject", "Sketch017")
body18.addObject(sketch18)
sketch18.AttachmentSupport = (doc.getObject("XY_Plane017"), [""])
sketch18.MapMode = "FlatFace"
sketch18.AttachmentOffset = App.Placement(Vector(0, 0, -10), App.Rotation())
sketch18.addGeometry(Part.LineSegment(Vector(16, 2.7, 0), Vector(16, 1.7, 0)), False)
sketch18.addGeometry(Part.LineSegment(Vector(16, 1.7, 0), Vector(32, 1.7, 0)), False)
sketch18.addGeometry(Part.LineSegment(Vector(32, 1.7, 0), Vector(32, 2.7, 0)), False)
sketch18.addGeometry(Part.LineSegment(Vector(32, 2.7, 0), Vector(16, 2.7, 0)), False)
sketch18.addConstraint(Sketcher.Constraint("Coincident", 0, 2, 1, 1))
sketch18.addConstraint(Sketcher.Constraint("Coincident", 1, 2, 2, 1))
sketch18.addConstraint(Sketcher.Constraint("Coincident", 2, 2, 3, 1))
sketch18.addConstraint(Sketcher.Constraint("Coincident", 3, 2, 0, 1))
sketch18.addConstraint(Sketcher.Constraint("Vertical", 0))
sketch18.addConstraint(Sketcher.Constraint("Horizontal", 1))
sketch18.addConstraint(Sketcher.Constraint("Vertical", 2))
sketch18.addConstraint(Sketcher.Constraint("Horizontal", 3))
sketch18.addConstraint(Sketcher.Constraint("DistanceX", 1, 1, 1, 2, 16.0))
sketch18.addConstraint(Sketcher.Constraint("DistanceY", 0, 2, 0, 1, 1.0))
sketch18.addConstraint(Sketcher.Constraint("DistanceX", -1, 1, 0, 2, 16.0))
sketch18.addConstraint(Sketcher.Constraint("DistanceY", -1, 1, 0, 2, 1.7))
pad18 = doc.addObject("PartDesign::Pad", "Pad017")
body18.addObject(pad18)
pad18.Profile = sketch18
pad18.Length = 10
body19 = doc.addObject("PartDesign::Body", "Body018")

# Sketch on XY plane
sketch19 = doc.addObject("Sketcher::SketchObject", "Sketch018")
body19.addObject(sketch19)
sketch19.AttachmentSupport = (doc.getObject("XY_Plane018"), [""])
sketch19.MapMode = "FlatFace"
sketch19.AttachmentOffset = App.Placement(Vector(0, 0, -10), App.Rotation())
sketch19.addGeometry(Part.LineSegment(Vector(16, -1.7, 0), Vector(16, -2.7, 0)), False)
sketch19.addGeometry(Part.LineSegment(Vector(16, -2.7, 0), Vector(32, -2.7, 0)), False)
sketch19.addGeometry(Part.LineSegment(Vector(32, -2.7, 0), Vector(32, -1.7, 0)), False)
sketch19.addGeometry(Part.LineSegment(Vector(32, -1.7, 0), Vector(16, -1.7, 0)), False)
sketch19.addConstraint(Sketcher.Constraint("Coincident", 0, 2, 1, 1))
sketch19.addConstraint(Sketcher.Constraint("Coincident", 1, 2, 2, 1))
sketch19.addConstraint(Sketcher.Constraint("Coincident", 2, 2, 3, 1))
sketch19.addConstraint(Sketcher.Constraint("Coincident", 3, 2, 0, 1))
sketch19.addConstraint(Sketcher.Constraint("Vertical", 0))
sketch19.addConstraint(Sketcher.Constraint("Horizontal", 1))
sketch19.addConstraint(Sketcher.Constraint("Vertical", 2))
sketch19.addConstraint(Sketcher.Constraint("Horizontal", 3))
sketch19.addConstraint(Sketcher.Constraint("DistanceX", 1, 1, 1, 2, 16.0))
sketch19.addConstraint(Sketcher.Constraint("DistanceY", 0, 2, 0, 1, 1.0))
sketch19.addConstraint(Sketcher.Constraint("DistanceX", -1, 1, 0, 2, 16.0))
sketch19.addConstraint(Sketcher.Constraint("DistanceY", 0, 2, -1, 1, 2.7))
pad19 = doc.addObject("PartDesign::Pad", "Pad018")
body19.addObject(pad19)
pad19.Profile = sketch19
pad19.Length = 10
body20 = doc.addObject("PartDesign::Body", "Body019")

# Sketch on XY plane
sketch20 = doc.addObject("Sketcher::SketchObject", "Sketch019")
body20.addObject(sketch20)
sketch20.AttachmentSupport = (doc.getObject("XY_Plane019"), [""])
sketch20.MapMode = "FlatFace"
sketch20.AttachmentOffset = App.Placement(Vector(0, 0, -10), App.Rotation())
sketch20.addGeometry(Part.LineSegment(Vector(-32, 2.7, 0), Vector(-32, 1.7, 0)), False)
sketch20.addGeometry(Part.LineSegment(Vector(-32, 1.7, 0), Vector(-16, 1.7, 0)), False)
sketch20.addGeometry(Part.LineSegment(Vector(-16, 1.7, 0), Vector(-16, 2.7, 0)), False)
sketch20.addGeometry(Part.LineSegment(Vector(-16, 2.7, 0), Vector(-32, 2.7, 0)), False)
sketch20.addConstraint(Sketcher.Constraint("Coincident", 0, 2, 1, 1))
sketch20.addConstraint(Sketcher.Constraint("Coincident", 1, 2, 2, 1))
sketch20.addConstraint(Sketcher.Constraint("Coincident", 2, 2, 3, 1))
sketch20.addConstraint(Sketcher.Constraint("Coincident", 3, 2, 0, 1))
sketch20.addConstraint(Sketcher.Constraint("Vertical", 0))
sketch20.addConstraint(Sketcher.Constraint("Horizontal", 1))
sketch20.addConstraint(Sketcher.Constraint("Vertical", 2))
sketch20.addConstraint(Sketcher.Constraint("Horizontal", 3))
sketch20.addConstraint(Sketcher.Constraint("DistanceX", 1, 1, 1, 2, 16.0))
sketch20.addConstraint(Sketcher.Constraint("DistanceY", 0, 2, 0, 1, 1.0))
sketch20.addConstraint(Sketcher.Constraint("DistanceX", 0, 2, -1, 1, 32.0))
sketch20.addConstraint(Sketcher.Constraint("DistanceY", -1, 1, 0, 2, 1.7))
pad20 = doc.addObject("PartDesign::Pad", "Pad019")
body20.addObject(pad20)
pad20.Profile = sketch20
pad20.Length = 10
body21 = doc.addObject("PartDesign::Body", "Body020")

# Sketch on XY plane
sketch21 = doc.addObject("Sketcher::SketchObject", "Sketch020")
body21.addObject(sketch21)
sketch21.AttachmentSupport = (doc.getObject("XY_Plane020"), [""])
sketch21.MapMode = "FlatFace"
sketch21.AttachmentOffset = App.Placement(Vector(0, 0, -10), App.Rotation())
sketch21.addGeometry(Part.LineSegment(Vector(-32, -1.7, 0), Vector(-32, -2.7, 0)), False)
sketch21.addGeometry(Part.LineSegment(Vector(-32, -2.7, 0), Vector(-16, -2.7, 0)), False)
sketch21.addGeometry(Part.LineSegment(Vector(-16, -2.7, 0), Vector(-16, -1.7, 0)), False)
sketch21.addGeometry(Part.LineSegment(Vector(-16, -1.7, 0), Vector(-32, -1.7, 0)), False)
sketch21.addConstraint(Sketcher.Constraint("Coincident", 0, 2, 1, 1))
sketch21.addConstraint(Sketcher.Constraint("Coincident", 1, 2, 2, 1))
sketch21.addConstraint(Sketcher.Constraint("Coincident", 2, 2, 3, 1))
sketch21.addConstraint(Sketcher.Constraint("Coincident", 3, 2, 0, 1))
sketch21.addConstraint(Sketcher.Constraint("Vertical", 0))
sketch21.addConstraint(Sketcher.Constraint("Horizontal", 1))
sketch21.addConstraint(Sketcher.Constraint("Vertical", 2))
sketch21.addConstraint(Sketcher.Constraint("Horizontal", 3))
sketch21.addConstraint(Sketcher.Constraint("DistanceX", 1, 1, 1, 2, 16.0))
sketch21.addConstraint(Sketcher.Constraint("DistanceY", 0, 2, 0, 1, 1.0))
sketch21.addConstraint(Sketcher.Constraint("DistanceX", 0, 2, -1, 1, 32.0))
sketch21.addConstraint(Sketcher.Constraint("DistanceY", 0, 2, -1, 1, 2.7))
pad21 = doc.addObject("PartDesign::Pad", "Pad020")
body21.addObject(pad21)
pad21.Profile = sketch21
pad21.Length = 10
body22 = doc.addObject("PartDesign::Body", "Body021")
body22.AllowCompound = True

# Sketch on XY plane
sketch22 = doc.addObject("Sketcher::SketchObject", "Sketch021")
body22.addObject(sketch22)
sketch22.AttachmentSupport = (doc.getObject("XY_Plane021"), [""])
sketch22.MapMode = "FlatFace"
sketch22.AttachmentOffset = App.Placement(Vector(0, 0, -10), App.Rotation())
sketch22.addGeometry(Part.LineSegment(Vector(1.7, 32, 0), Vector(1.7, 16, 0)), False)
sketch22.addGeometry(Part.LineSegment(Vector(1.7, 16, 0), Vector(2.7, 16, 0)), False)
sketch22.addGeometry(Part.LineSegment(Vector(2.7, 16, 0), Vector(2.7, 32, 0)), False)
sketch22.addGeometry(Part.LineSegment(Vector(2.7, 32, 0), Vector(1.7, 32, 0)), False)
sketch22.addConstraint(Sketcher.Constraint("Coincident", 0, 2, 1, 1))
sketch22.addConstraint(Sketcher.Constraint("Coincident", 1, 2, 2, 1))
sketch22.addConstraint(Sketcher.Constraint("Coincident", 2, 2, 3, 1))
sketch22.addConstraint(Sketcher.Constraint("Coincident", 3, 2, 0, 1))
sketch22.addConstraint(Sketcher.Constraint("Vertical", 0))
sketch22.addConstraint(Sketcher.Constraint("Horizontal", 1))
sketch22.addConstraint(Sketcher.Constraint("Vertical", 2))
sketch22.addConstraint(Sketcher.Constraint("Horizontal", 3))
sketch22.addConstraint(Sketcher.Constraint("DistanceX", 1, 1, 1, 2, 1.0))
sketch22.addConstraint(Sketcher.Constraint("DistanceY", 0, 2, 0, 1, 16.0))
sketch22.addConstraint(Sketcher.Constraint("DistanceY", -1, 1, 0, 2, 16.0))
sketch22.addConstraint(Sketcher.Constraint("DistanceX", -1, 1, 0, 2, 1.7))
pad22 = doc.addObject("PartDesign::Pad", "Pad021")
body22.addObject(pad22)
pad22.Profile = sketch22
pad22.Length = 10
doc.recompute()

boolean11 = doc.addObject("PartDesign::Boolean", "Boolean010")
body22.addObject(boolean11)
boolean11.Type = "Fuse"
boolean11.addObjects([body15])
doc.recompute()

boolean12 = doc.addObject("PartDesign::Boolean", "Boolean011")
body22.addObject(boolean12)
boolean12.Type = "Fuse"
boolean12.addObjects([body16])
doc.recompute()

boolean13 = doc.addObject("PartDesign::Boolean", "Boolean012")
body22.addObject(boolean13)
boolean13.Type = "Fuse"
boolean13.addObjects([body17])
doc.recompute()

boolean14 = doc.addObject("PartDesign::Boolean", "Boolean013")
body22.addObject(boolean14)
boolean14.Type = "Fuse"
boolean14.addObjects([body18])
doc.recompute()

boolean15 = doc.addObject("PartDesign::Boolean", "Boolean014")
body22.addObject(boolean15)
boolean15.Type = "Fuse"
boolean15.addObjects([body19])
doc.recompute()

boolean16 = doc.addObject("PartDesign::Boolean", "Boolean015")
body22.addObject(boolean16)
boolean16.Type = "Fuse"
boolean16.addObjects([body20])
doc.recompute()

boolean17 = doc.addObject("PartDesign::Boolean", "Boolean016")
body22.addObject(boolean17)
boolean17.Type = "Fuse"
boolean17.addObjects([body21])
body23 = doc.addObject("PartDesign::Body", "Body022")

# Sketch on XY plane
sketch23 = doc.addObject("Sketcher::SketchObject", "Sketch022")
body23.addObject(sketch23)
sketch23.AttachmentSupport = (doc.getObject("XY_Plane022"), [""])
sketch23.MapMode = "FlatFace"
sketch23.addGeometry(Part.Circle(Vector(0, 0, 0), Vector(0, 0, 1), 32), False)
sketch23.addGeometry(Part.Circle(Vector(0, 0, 0), Vector(0, 0, 1), 16), False)
sketch23.addConstraint(Sketcher.Constraint("Coincident", 0, 3, -1, 1))
sketch23.addConstraint(Sketcher.Constraint("Coincident", 1, 3, -1, 1))
sketch23.addConstraint(Sketcher.Constraint("Diameter", 0, 65.0))
sketch23.addConstraint(Sketcher.Constraint("Diameter", 1, 31.4))
pad23 = doc.addObject("PartDesign::Pad", "Pad022")
body23.addObject(pad23)
pad23.Profile = sketch23
pad23.Length = 3
doc.recompute()

boolean18 = doc.addObject("PartDesign::Boolean", "Boolean017")
body23.addObject(boolean18)
boolean18.Type = "Fuse"
boolean18.addObjects([body14])
doc.recompute()

boolean19 = doc.addObject("PartDesign::Boolean", "Boolean018")
body23.addObject(boolean19)
boolean19.Type = "Fuse"
boolean19.addObjects([body22])
doc.recompute()

boolean20 = doc.addObject("PartDesign::Boolean", "Boolean019")
body23.addObject(boolean20)
boolean20.Type = "Cut"
boolean20.addObjects([body13])
doc.recompute()

boolean21 = doc.addObject("PartDesign::Boolean", "Boolean020")
body23.addObject(boolean21)
boolean21.Type = "Fuse"
boolean21.addObjects([body5])
body24 = doc.addObject("PartDesign::Body", "Body023")
doc.recompute()

body23.Placement = App.Placement(Vector(0, 0, 95), App.Rotation(Vector(0, 0, 1), 0))
boolean22 = doc.addObject("PartDesign::Boolean", "Boolean021")
body24.addObject(boolean22)
boolean22.Type = "Fuse"
boolean22.addObjects([body23])
doc.recompute()

boolean23 = doc.addObject("PartDesign::Boolean", "Boolean022")
body24.addObject(boolean23)
boolean23.Type = "Cut"
boolean23.addObjects([body])

doc.recompute()
